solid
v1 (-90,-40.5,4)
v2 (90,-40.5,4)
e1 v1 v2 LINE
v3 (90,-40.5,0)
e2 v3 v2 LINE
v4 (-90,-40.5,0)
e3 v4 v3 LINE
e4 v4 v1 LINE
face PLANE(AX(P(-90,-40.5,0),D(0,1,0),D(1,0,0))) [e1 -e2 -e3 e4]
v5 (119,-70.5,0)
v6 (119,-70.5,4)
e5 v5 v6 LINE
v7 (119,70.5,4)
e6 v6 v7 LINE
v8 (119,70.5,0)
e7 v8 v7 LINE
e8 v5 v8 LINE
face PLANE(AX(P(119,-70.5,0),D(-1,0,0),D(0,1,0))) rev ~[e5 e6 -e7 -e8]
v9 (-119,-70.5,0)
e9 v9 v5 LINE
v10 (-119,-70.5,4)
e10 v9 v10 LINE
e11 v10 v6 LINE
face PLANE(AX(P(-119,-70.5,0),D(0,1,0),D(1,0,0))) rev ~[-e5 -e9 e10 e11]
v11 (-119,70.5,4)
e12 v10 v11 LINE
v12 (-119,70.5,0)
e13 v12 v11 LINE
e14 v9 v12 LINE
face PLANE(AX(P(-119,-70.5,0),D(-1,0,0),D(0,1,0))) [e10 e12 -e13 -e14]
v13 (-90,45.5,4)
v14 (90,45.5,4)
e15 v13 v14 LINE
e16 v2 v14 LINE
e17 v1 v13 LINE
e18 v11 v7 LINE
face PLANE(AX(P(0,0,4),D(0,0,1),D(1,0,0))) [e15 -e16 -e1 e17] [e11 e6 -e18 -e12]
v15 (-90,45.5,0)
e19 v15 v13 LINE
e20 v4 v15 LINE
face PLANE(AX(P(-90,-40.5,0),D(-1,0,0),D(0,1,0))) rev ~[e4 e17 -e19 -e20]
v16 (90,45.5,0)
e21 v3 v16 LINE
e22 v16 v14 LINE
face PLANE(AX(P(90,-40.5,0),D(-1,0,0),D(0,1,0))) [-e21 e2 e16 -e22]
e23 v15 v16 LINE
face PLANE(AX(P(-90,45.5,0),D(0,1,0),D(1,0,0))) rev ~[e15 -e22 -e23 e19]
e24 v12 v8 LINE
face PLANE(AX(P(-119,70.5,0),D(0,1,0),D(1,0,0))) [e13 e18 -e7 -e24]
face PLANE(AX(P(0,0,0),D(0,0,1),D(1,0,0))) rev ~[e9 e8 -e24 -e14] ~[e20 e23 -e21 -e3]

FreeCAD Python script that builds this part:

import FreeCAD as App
import Part
import Sketcher

V = App.Vector


def add_polygon(sketch, points):
    """Adds a closed chain of lines whose ends are joined by coincident constraints."""
    first, n = sketch.GeometryCount, len(points)
    for a, b in zip(points, points[1:] + points[:1]):
        sketch.addGeometry(Part.LineSegment(App.Vector(*a, 0), App.Vector(*b, 0)), False)
    for i in range(n):
        sketch.addConstraint(Sketcher.Constraint("Coincident", first + i, 2, first + (i + 1) % n, 1))

doc = App.newDocument("Part")
params = doc.addObject("Spreadsheet::Sheet", "Params")
for row, (alias, value) in enumerate([
    ("sketch1_width", "238 mm"),
    ("sketch1_width2", "180 mm"),
    ("sketch1_height", "141 mm"),
    ("sketch1_height2", "86 mm"),
    ("pad1_length", "4 mm"),
], start=1):
    params.set(f"A{row}", alias)
    params.set(f"B{row}", "=" + value)
    params.setAlias(f"B{row}", alias)

body = doc.addObject("PartDesign::Body", "Body")

# Sketch on XY plane
sketch1 = doc.addObject("Sketcher::SketchObject", "Sketch")
body.addObject(sketch1)
sketch1.AttachmentSupport = (doc.XY_Plane, [""])
sketch1.MapMode = "FlatFace"
add_polygon(sketch1, [(-119, 70), (-119, -70), (119, -70), (119, 70)])  # lines 0-3
add_polygon(sketch1, [(90, -40), (-90, -40), (-90, 46), (90, 46)])  # lines 4-7
sketch1.addConstraint(Sketcher.Constraint("Vertical", 0))
sketch1.addConstraint(Sketcher.Constraint("Horizontal", 1))
sketch1.addConstraint(Sketcher.Constraint("Vertical", 2))
sketch1.addConstraint(Sketcher.Constraint("Horizontal", 3))
sketch1.addConstraint(Sketcher.Constraint("Horizontal", 4))
sketch1.addConstraint(Sketcher.Constraint("Vertical", 5))
sketch1.addConstraint(Sketcher.Constraint("Horizontal", 6))
sketch1.addConstraint(Sketcher.Constraint("Vertical", 7))
sketch1.addConstraint(Sketcher.Constraint("Symmetric", 0, 2, 2, 2, -1, 1))
sketch1.addConstraint(Sketcher.Constraint("DistanceX", 1, 1, 1, 2, 238.0))
sketch1.addConstraint(Sketcher.Constraint("DistanceX", 4, 2, 4, 1, 180.0))
sketch1.addConstraint(Sketcher.Constraint("DistanceY", 0, 2, 0, 1, 141.0))
sketch1.addConstraint(Sketcher.Constraint("DistanceY", 5, 1, 5, 2, 86.0))
sketch1.addConstraint(Sketcher.Constraint("DistanceX", 4, 2, -1, 1, 90.0))
sketch1.addConstraint(Sketcher.Constraint("DistanceY", 0, 2, 4, 2, 30.0))
sketch1.setExpression("Constraints[17]", "Params.sketch1_width")
sketch1.setExpression("Constraints[18]", "Params.sketch1_width2")
sketch1.setExpression("Constraints[19]", "Params.sketch1_height")
sketch1.setExpression("Constraints[20]", "Params.sketch1_height2")
pad1 = doc.addObject("PartDesign::Pad", "Pad")
body.addObject(pad1)
pad1.Profile = sketch1
pad1.setExpression("Length", "Params.pad1_length")

doc.recompute()
